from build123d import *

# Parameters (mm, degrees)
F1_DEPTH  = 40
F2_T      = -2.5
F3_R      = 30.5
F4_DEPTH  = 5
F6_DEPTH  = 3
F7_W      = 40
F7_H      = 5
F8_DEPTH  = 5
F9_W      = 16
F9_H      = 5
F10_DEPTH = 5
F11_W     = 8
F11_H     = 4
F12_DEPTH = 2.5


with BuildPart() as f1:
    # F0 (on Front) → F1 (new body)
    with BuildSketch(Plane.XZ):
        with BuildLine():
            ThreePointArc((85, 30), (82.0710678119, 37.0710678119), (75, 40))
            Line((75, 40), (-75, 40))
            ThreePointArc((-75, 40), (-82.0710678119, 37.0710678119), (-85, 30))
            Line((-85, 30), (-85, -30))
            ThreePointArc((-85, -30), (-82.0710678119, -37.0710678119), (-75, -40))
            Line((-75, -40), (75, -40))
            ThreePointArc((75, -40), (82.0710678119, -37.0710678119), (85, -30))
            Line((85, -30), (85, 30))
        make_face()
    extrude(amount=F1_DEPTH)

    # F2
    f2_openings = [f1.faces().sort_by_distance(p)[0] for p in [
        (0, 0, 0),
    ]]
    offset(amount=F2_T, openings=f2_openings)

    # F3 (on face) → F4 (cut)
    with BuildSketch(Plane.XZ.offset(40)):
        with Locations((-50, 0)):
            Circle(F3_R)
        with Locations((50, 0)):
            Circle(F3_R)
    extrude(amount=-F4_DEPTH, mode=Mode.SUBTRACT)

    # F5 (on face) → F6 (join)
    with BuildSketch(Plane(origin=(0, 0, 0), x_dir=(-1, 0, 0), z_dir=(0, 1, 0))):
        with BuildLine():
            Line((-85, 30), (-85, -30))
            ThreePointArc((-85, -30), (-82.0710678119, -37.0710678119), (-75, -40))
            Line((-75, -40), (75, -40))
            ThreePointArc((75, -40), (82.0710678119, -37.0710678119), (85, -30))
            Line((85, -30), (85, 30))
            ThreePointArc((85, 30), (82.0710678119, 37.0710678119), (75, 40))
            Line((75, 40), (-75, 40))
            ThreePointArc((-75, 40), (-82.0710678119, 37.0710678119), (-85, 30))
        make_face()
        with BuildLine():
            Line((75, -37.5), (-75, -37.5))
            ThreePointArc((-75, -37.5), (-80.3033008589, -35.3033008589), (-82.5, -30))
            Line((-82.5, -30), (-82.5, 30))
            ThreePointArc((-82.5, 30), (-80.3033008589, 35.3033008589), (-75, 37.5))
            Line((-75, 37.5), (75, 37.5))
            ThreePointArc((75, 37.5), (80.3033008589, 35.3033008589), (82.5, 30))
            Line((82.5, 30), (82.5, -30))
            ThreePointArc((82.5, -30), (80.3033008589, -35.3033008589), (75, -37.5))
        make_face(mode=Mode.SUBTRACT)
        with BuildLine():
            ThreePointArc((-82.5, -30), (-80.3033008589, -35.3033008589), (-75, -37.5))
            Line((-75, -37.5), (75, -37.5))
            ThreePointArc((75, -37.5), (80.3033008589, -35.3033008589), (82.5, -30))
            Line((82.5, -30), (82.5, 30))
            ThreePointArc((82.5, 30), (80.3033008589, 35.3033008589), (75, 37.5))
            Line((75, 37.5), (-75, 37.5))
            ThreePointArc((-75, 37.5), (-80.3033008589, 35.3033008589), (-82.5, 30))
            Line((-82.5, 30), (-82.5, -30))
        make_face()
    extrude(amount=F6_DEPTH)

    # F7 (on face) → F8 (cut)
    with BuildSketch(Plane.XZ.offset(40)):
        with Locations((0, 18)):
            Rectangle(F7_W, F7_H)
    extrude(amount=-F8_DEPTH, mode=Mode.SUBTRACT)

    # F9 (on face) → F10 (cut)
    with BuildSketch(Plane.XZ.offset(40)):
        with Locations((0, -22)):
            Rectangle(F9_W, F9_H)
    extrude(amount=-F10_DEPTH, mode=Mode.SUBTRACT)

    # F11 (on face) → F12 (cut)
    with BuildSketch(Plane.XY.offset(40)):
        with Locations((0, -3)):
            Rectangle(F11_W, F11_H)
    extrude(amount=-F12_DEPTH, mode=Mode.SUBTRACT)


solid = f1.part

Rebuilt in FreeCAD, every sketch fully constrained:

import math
import FreeCAD as App
import Part
import Sketcher

V = App.Vector
Q = App.Units.Quantity


def faces_at(feature, points):
    """Names of the faces that lie closest to the given points."""
    faces = feature.Shape.Faces
    near = lambda p: min(range(len(faces)), key=lambda i: faces[i].distToShape(Part.Vertex(*p))[0])
    return sorted({f"Face{near(p) + 1}" for p in points})

doc = App.newDocument("Part")
body = doc.addObject("PartDesign::Body", "Body")

sketch1 = body.newObject("Sketcher::SketchObject", "Sketch")
sketch1.AttachmentSupport = (doc.getObject("XZ_Plane"), [""])
sketch1.MapMode = "FlatFace"
sketch1.addGeometry([
    Part.ArcOfCircle(Part.Circle(V(75, 30, 0), V(0, 0, 1), 10), math.radians(0), math.radians(90)),
    Part.LineSegment(V(75, 40, 0), V(-75, 40, 0)),
    Part.ArcOfCircle(Part.Circle(V(-75, 30, 0), V(0, 0, 1), 10), math.radians(90), math.radians(180)),
    Part.LineSegment(V(-85, 30, 0), V(-85, -30, 0)),
    Part.ArcOfCircle(Part.Circle(V(-75, -30, 0), V(0, 0, 1), 10), math.radians(180), math.radians(270)),
    Part.LineSegment(V(-75, -40, 0), V(75, -40, 0)),
    Part.ArcOfCircle(Part.Circle(V(75, -30, 0), V(0, 0, 1), 10), math.radians(-90), math.radians(0)),
    Part.LineSegment(V(85, -30, 0), V(85, 30, 0)),
], False)
sketch1.addConstraint([
    Sketcher.Constraint("Tangent", 0, 2, 1, 1),
    Sketcher.Constraint("Tangent", 1, 2, 2, 1),
    Sketcher.Constraint("Tangent", 2, 2, 3, 1),
    Sketcher.Constraint("Tangent", 3, 2, 4, 1),
    Sketcher.Constraint("Tangent", 4, 2, 5, 1),
    Sketcher.Constraint("Tangent", 5, 2, 6, 1),
    Sketcher.Constraint("Tangent", 6, 2, 7, 1),
    Sketcher.Constraint("Tangent", 7, 2, 0, 1),
    Sketcher.Constraint("Horizontal", 1),
    Sketcher.Constraint("Vertical", 3),
    Sketcher.Constraint("Horizontal", 5),
    Sketcher.Constraint("Vertical", 7),
    Sketcher.Constraint("Equal", 0, 2),
    Sketcher.Constraint("Equal", 2, 4),
    Sketcher.Constraint("Equal", 4, 6),
    Sketcher.Constraint("Symmetric", 0, 3, 4, 3, -1, 1),
    Sketcher.Constraint("Radius", 0, Q("10 mm")),
    Sketcher.Constraint("DistanceX", 1, 2, 1, 1, Q("150 mm")),
    Sketcher.Constraint("DistanceY", 3, 2, 3, 1, Q("60 mm")),
])
pad1 = body.newObject("PartDesign::Pad", "Pad")
pad1.Profile = sketch1
pad1.Length = 40
doc.recompute()

thickness = body.newObject("PartDesign::Thickness", "Thickness")
thickness.Base = (pad1, faces_at(pad1, [(0, 0, 0)]))
thickness.Value = 2.5
thickness.Reversed = True
thickness.Join = "Arc"

sketch2 = body.newObject("Sketcher::SketchObject", "Sketch001")
sketch2.AttachmentSupport = (doc.getObject("XZ_Plane"), [""])
sketch2.MapMode = "FlatFace"
sketch2.AttachmentOffset = App.Placement(V(0, 0, 40), App.Rotation())
sketch2.addGeometry([
    Part.Circle(V(-50, 0, 0), V(0, 0, 1), 30.5),
    Part.Circle(V(50, 0, 0), V(0, 0, 1), 30.5),
], False)
sketch2.addConstraint([
    Sketcher.Constraint("Equal", 0, 1),
    Sketcher.Constraint("Symmetric", 0, 3, 1, 3, -1, 1),
    Sketcher.Constraint("PointOnObject", 0, 3, -1),
    Sketcher.Constraint("Diameter", 0, Q("61 mm")),
    Sketcher.Constraint("DistanceX", 0, 3, -1, 1, Q("50 mm")),
])
pocket1 = body.newObject("PartDesign::Pocket", "Pocket")
pocket1.Profile = sketch2
pocket1.Length = 5

sketch3 = body.newObject("Sketcher::SketchObject", "Sketch002")
sketch3.AttachmentSupport = (doc.getObject("XZ_Plane"), [""])
sketch3.MapMode = "FlatFace"
sketch3.addGeometry([
    Part.LineSegment(V(85, 30, 0), V(85, -30, 0)),
    Part.ArcOfCircle(Part.Circle(V(75, -30, 0), V(0, 0, 1), 10), math.radians(-90), math.radians(0)),
    Part.LineSegment(V(75, -40, 0), V(-75, -40, 0)),
    Part.ArcOfCircle(Part.Circle(V(-75, -30, 0), V(0, 0, 1), 10), math.radians(180), math.radians(270)),
    Part.LineSegment(V(-85, -30, 0), V(-85, 30, 0)),
    Part.ArcOfCircle(Part.Circle(V(-75, 30, 0), V(0, 0, 1), 10), math.radians(90), math.radians(180)),
    Part.LineSegment(V(-75, 40, 0), V(75, 40, 0)),
    Part.ArcOfCircle(Part.Circle(V(75, 30, 0), V(0, 0, 1), 10), math.radians(0), math.radians(90)),
], False)
sketch3.addConstraint([
    Sketcher.Constraint("Tangent", 0, 2, 1, 2),
    Sketcher.Constraint("Tangent", 1, 1, 2, 1),
    Sketcher.Constraint("Tangent", 2, 2, 3, 2),
    Sketcher.Constraint("Tangent", 3, 1, 4, 1),
    Sketcher.Constraint("Tangent", 4, 2, 5, 2),
    Sketcher.Constraint("Tangent", 5, 1, 6, 1),
    Sketcher.Constraint("Tangent", 6, 2, 7, 2),
    Sketcher.Constraint("Tangent", 7, 1, 0, 1),
    Sketcher.Constraint("Vertical", 0),
    Sketcher.Constraint("Horizontal", 2),
    Sketcher.Constraint("Vertical", 4),
    Sketcher.Constraint("Horizontal", 6),
    Sketcher.Constraint("Equal", 1, 3),
    Sketcher.Constraint("Equal", 3, 5),
    Sketcher.Constraint("Equal", 5, 7),
    Sketcher.Constraint("Symmetric", 1, 3, 5, 3, -1, 1),
    Sketcher.Constraint("Radius", 1, Q("10 mm")),
    Sketcher.Constraint("DistanceX", 2, 2, 2, 1, Q("150 mm")),
    Sketcher.Constraint("DistanceY", 0, 2, 0, 1, Q("60 mm")),
])
pad2 = body.newObject("PartDesign::Pad", "Pad001")
pad2.Profile = sketch3
pad2.Length = 3
pad2.Reversed = True

sketch4 = body.newObject("Sketcher::SketchObject", "Sketch003")
sketch4.AttachmentSupport = (doc.getObject("XZ_Plane"), [""])
sketch4.MapMode = "FlatFace"
sketch4.AttachmentOffset = App.Placement(V(0, 0, 40), App.Rotation())
sketch4.addGeometry([
    Part.LineSegment(V(-20, 20.5, 0), V(-20, 15.5, 0)),
    Part.LineSegment(V(-20, 15.5, 0), V(20, 15.5, 0)),
    Part.LineSegment(V(20, 15.5, 0), V(20, 20.5, 0)),
    Part.LineSegment(V(20, 20.5, 0), V(-20, 20.5, 0)),
], False)
sketch4.addConstraint([
    Sketcher.Constraint("Coincident", 0, 2, 1, 1),
    Sketcher.Constraint("Coincident", 1, 2, 2, 1),
    Sketcher.Constraint("Coincident", 2, 2, 3, 1),
    Sketcher.Constraint("Coincident", 3, 2, 0, 1),
    Sketcher.Constraint("Vertical", 0),
    Sketcher.Constraint("Horizontal", 1),
    Sketcher.Constraint("Vertical", 2),
    Sketcher.Constraint("Horizontal", 3),
    Sketcher.Constraint("DistanceX", 1, 1, 1, 2, Q("40 mm")),
    Sketcher.Constraint("DistanceY", 0, 2, 0, 1, Q("5 mm")),
    Sketcher.Constraint("DistanceX", 0, 2, -1, 1, Q("20 mm")),
    Sketcher.Constraint("DistanceY", -1, 1, 0, 2, Q("15.5 mm")),
])
pocket2 = body.newObject("PartDesign::Pocket", "Pocket001")
pocket2.Profile = sketch4
pocket2.Length = 5

sketch5 = body.newObject("Sketcher::SketchObject", "Sketch004")
sketch5.AttachmentSupport = (doc.getObject("XZ_Plane"), [""])
sketch5.MapMode = "FlatFace"
sketch5.AttachmentOffset = App.Placement(V(0, 0, 40), App.Rotation())
sketch5.addGeometry([
    Part.LineSegment(V(-8, -19.5, 0), V(-8, -24.5, 0)),
    Part.LineSegment(V(-8, -24.5, 0), V(8, -24.5, 0)),
    Part.LineSegment(V(8, -24.5, 0), V(8, -19.5, 0)),
    Part.LineSegment(V(8, -19.5, 0), V(-8, -19.5, 0)),
], False)
sketch5.addConstraint([
    Sketcher.Constraint("Coincident", 0, 2, 1, 1),
    Sketcher.Constraint("Coincident", 1, 2, 2, 1),
    Sketcher.Constraint("Coincident", 2, 2, 3, 1),
    Sketcher.Constraint("Coincident", 3, 2, 0, 1),
    Sketcher.Constraint("Vertical", 0),
    Sketcher.Constraint("Horizontal", 1),
    Sketcher.Constraint("Vertical", 2),
    Sketcher.Constraint("Horizontal", 3),
    Sketcher.Constraint("DistanceX", 1, 1, 1, 2, Q("16 mm")),
    Sketcher.Constraint("DistanceY", 0, 2, 0, 1, Q("5 mm")),
    Sketcher.Constraint("DistanceX", 0, 2, -1, 1, Q("8 mm")),
    Sketcher.Constraint("DistanceY", 0, 2, -1, 1, Q("24.5 mm")),
])
pocket3 = body.newObject("PartDesign::Pocket", "Pocket002")
pocket3.Profile = sketch5
pocket3.Length = 5

sketch6 = body.newObject("Sketcher::SketchObject", "Sketch005")
sketch6.AttachmentSupport = (doc.getObject("XY_Plane"), [""])
sketch6.MapMode = "FlatFace"
sketch6.AttachmentOffset = App.Placement(V(0, 0, 40), App.Rotation())
sketch6.addGeometry([
    Part.LineSegment(V(-4, -1, 0), V(-4, -5, 0)),
    Part.LineSegment(V(-4, -5, 0), V(4, -5, 0)),
    Part.LineSegment(V(4, -5, 0), V(4, -1, 0)),
    Part.LineSegment(V(4, -1, 0), V(-4, -1, 0)),
], False)
sketch6.addConstraint([
    Sketcher.Constraint("Coincident", 0, 2, 1, 1),
    Sketcher.Constraint("Coincident", 1, 2, 2, 1),
    Sketcher.Constraint("Coincident", 2, 2, 3, 1),
    Sketcher.Constraint("Coincident", 3, 2, 0, 1),
    Sketcher.Constraint("Vertical", 0),
    Sketcher.Constraint("Horizontal", 1),
    Sketcher.Constraint("Vertical", 2),
    Sketcher.Constraint("Horizontal", 3),
    Sketcher.Constraint("DistanceX", 1, 1, 1, 2, Q("8 mm")),
    Sketcher.Constraint("DistanceY", 0, 2, 0, 1, Q("4 mm")),
    Sketcher.Constraint("DistanceX", 0, 2, -1, 1, Q("4 mm")),
    Sketcher.Constraint("DistanceY", 0, 2, -1, 1, Q("5 mm")),
])
pocket4 = body.newObject("PartDesign::Pocket", "Pocket003")
pocket4.Profile = sketch6
pocket4.Length = 2.5

doc.recompute()
